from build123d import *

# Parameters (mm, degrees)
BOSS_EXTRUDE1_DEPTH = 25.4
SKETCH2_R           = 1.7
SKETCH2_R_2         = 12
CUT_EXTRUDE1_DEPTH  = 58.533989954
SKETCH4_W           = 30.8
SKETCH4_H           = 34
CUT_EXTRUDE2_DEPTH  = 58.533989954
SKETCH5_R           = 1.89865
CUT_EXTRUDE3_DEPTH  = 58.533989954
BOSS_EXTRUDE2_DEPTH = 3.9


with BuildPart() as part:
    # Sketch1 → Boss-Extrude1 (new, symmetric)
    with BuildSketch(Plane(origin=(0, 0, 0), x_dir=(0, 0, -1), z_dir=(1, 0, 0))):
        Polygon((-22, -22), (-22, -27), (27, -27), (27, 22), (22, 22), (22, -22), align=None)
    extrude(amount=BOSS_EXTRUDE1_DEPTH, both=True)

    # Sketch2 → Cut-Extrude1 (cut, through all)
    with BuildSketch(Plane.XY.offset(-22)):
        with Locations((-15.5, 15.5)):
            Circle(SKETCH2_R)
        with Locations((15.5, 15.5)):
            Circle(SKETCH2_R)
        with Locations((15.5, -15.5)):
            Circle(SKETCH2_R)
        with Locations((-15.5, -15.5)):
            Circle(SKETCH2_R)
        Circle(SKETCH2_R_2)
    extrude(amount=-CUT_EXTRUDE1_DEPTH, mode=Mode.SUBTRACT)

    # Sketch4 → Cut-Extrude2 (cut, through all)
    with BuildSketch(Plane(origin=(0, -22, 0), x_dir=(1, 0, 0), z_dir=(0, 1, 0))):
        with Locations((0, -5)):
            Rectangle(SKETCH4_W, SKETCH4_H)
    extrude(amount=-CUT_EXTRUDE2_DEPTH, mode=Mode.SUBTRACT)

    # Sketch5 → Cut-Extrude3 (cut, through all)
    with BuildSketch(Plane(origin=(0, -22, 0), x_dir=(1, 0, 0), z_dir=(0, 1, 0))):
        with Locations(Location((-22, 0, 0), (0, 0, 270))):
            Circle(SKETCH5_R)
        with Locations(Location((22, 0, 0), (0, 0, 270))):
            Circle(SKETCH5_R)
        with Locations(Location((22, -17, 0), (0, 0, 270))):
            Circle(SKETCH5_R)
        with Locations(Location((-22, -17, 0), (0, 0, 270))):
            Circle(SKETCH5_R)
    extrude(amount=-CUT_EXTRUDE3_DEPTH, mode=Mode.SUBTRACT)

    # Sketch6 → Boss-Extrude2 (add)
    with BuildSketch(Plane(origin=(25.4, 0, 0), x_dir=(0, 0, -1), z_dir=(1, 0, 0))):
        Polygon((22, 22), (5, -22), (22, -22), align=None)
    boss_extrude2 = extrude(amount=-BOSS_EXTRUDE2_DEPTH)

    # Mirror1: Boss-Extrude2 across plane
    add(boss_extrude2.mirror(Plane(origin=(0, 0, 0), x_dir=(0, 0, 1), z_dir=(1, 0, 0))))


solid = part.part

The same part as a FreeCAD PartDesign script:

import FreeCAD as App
import Part
import Sketcher
from FreeCAD import Vector
Q = App.Units.Quantity

doc = App.newDocument("Part")
body = doc.addObject("PartDesign::Body", "Body")

# Sketch on YZ plane
sketch1 = body.newObject("Sketcher::SketchObject", "Sketch")
sketch1.AttachmentSupport = (doc.getObject("YZ_Plane"), [""])
sketch1.MapMode = "FlatFace"
sketch1.addGeometry([
    Part.LineSegment(Vector(-22, 22, 0), Vector(-27, 22, 0)),  # 0
    Part.LineSegment(Vector(-27, 22, 0), Vector(-27, -27, 0)),  # 1
    Part.LineSegment(Vector(-27, -27, 0), Vector(22, -27, 0)),  # 2
    Part.LineSegment(Vector(22, -27, 0), Vector(22, -22, 0)),  # 3
    Part.LineSegment(Vector(22, -22, 0), Vector(-22, -22, 0)),  # 4
    Part.LineSegment(Vector(-22, -22, 0), Vector(-22, 22, 0)),  # 5
], False)
sketch1.addConstraint([
    Sketcher.Constraint("Coincident", 0, 2, 1, 1),
    Sketcher.Constraint("Coincident", 1, 2, 2, 1),
    Sketcher.Constraint("Coincident", 2, 2, 3, 1),
    Sketcher.Constraint("Coincident", 3, 2, 4, 1),
    Sketcher.Constraint("Coincident", 4, 2, 5, 1),
    Sketcher.Constraint("Coincident", 5, 2, 0, 1),
    Sketcher.Constraint("Horizontal", 0),
    Sketcher.Constraint("Vertical", 1),
    Sketcher.Constraint("Horizontal", 2),
    Sketcher.Constraint("Vertical", 3),
    Sketcher.Constraint("Horizontal", 4),
    Sketcher.Constraint("Vertical", 5),
    Sketcher.Constraint("Symmetric", 3, 2, 5, 2, -1, 1),
    Sketcher.Constraint("Equal", 2, 1),
    Sketcher.Constraint("Equal", 0, 3),
    Sketcher.Constraint("DistanceX", 0, 2, 0, 1, Q("5 mm")),
    Sketcher.Constraint("DistanceX", 2, 1, 2, 2, Q("49 mm")),
])
pad1 = body.newObject("PartDesign::Pad", "Pad")
pad1.Profile = sketch1
pad1.Length = 50.8
pad1.Midplane = True

# Sketch on XY plane
sketch2 = body.newObject("Sketcher::SketchObject", "Sketch001")
sketch2.AttachmentSupport = (doc.getObject("XY_Plane"), [""])
sketch2.MapMode = "FlatFace"
sketch2.AttachmentOffset = App.Placement(Vector(0, 0, -22), App.Rotation())
sketch2.addGeometry([
    Part.Circle(Vector(-15.5, 15.5, 0), Vector(0, 0, 1), 1.7),  # 0
    Part.Circle(Vector(15.5, 15.5, 0), Vector(0, 0, 1), 1.7),  # 1
    Part.Circle(Vector(15.5, -15.5, 0), Vector(0, 0, 1), 1.7),  # 2
    Part.Circle(Vector(-15.5, -15.5, 0), Vector(0, 0, 1), 1.7),  # 3
    Part.Circle(Vector(0, 0, 0), Vector(0, 0, 1), 12),  # 4
], False)
sketch2.addConstraint([
    Sketcher.Constraint("Coincident", 4, 3, -1, 1),
    Sketcher.Constraint("Equal", 0, 1),
    Sketcher.Constraint("Equal", 1, 2),
    Sketcher.Constraint("Equal", 2, 3),
    Sketcher.Constraint("Symmetric", 0, 3, 2, 3, -1, 1),
    Sketcher.Constraint("Symmetric", 1, 3, 3, 3, -1, 1),
    Sketcher.Constraint("Symmetric", 0, 3, 1, 3, -2),
    Sketcher.Constraint("Diameter", 4, Q("24 mm")),
    Sketcher.Constraint("Diameter", 0, Q("3.4 mm")),
    Sketcher.Constraint("DistanceX", 0, 3, 1, 3, Q("31 mm")),
    Sketcher.Constraint("DistanceY", 2, 3, 1, 3, Q("31 mm")),
])
pocket1 = body.newObject("PartDesign::Pocket", "Pocket")
pocket1.Profile = sketch2
pocket1.Type = "ThroughAll"

# Sketch on XZ plane
sketch3 = body.newObject("Sketcher::SketchObject", "Sketch002")
sketch3.AttachmentSupport = (doc.getObject("XZ_Plane"), [""])
sketch3.MapMode = "FlatFace"
sketch3.AttachmentOffset = App.Placement(Vector(0, 0, 22), App.Rotation())
sketch3.addGeometry([
    Part.LineSegment(Vector(-15, -12, 0), Vector(-15, 22, 0)),
    Part.LineSegment(Vector(-15, 22, 0), Vector(15, 22, 0)),
    Part.LineSegment(Vector(15, 22, 0), Vector(15, -12, 0)),
    Part.LineSegment(Vector(15, -12, 0), Vector(-15, -12, 0)),
], False)
sketch3.addConstraint([
    Sketcher.Constraint("Coincident", 0, 2, 1, 1),
    Sketcher.Constraint("Coincident", 1, 2, 2, 1),
    Sketcher.Constraint("Coincident", 2, 2, 3, 1),
    Sketcher.Constraint("Coincident", 3, 2, 0, 1),
    Sketcher.Constraint("Vertical", 0),
    Sketcher.Constraint("Horizontal", 1),
    Sketcher.Constraint("Vertical", 2),
    Sketcher.Constraint("Horizontal", 3),
    Sketcher.Constraint("DistanceY", 0, 1, 0, 2, Q("34 mm")),
    Sketcher.Constraint("DistanceX", 1, 1, 1, 2, Q("30.8 mm")),
    Sketcher.Constraint("DistanceY", -1, 1, 0, 2, Q("22 mm")),
    Sketcher.Constraint("DistanceX", 0, 2, -1, 1, Q("15.4 mm")),
])
pocket2 = body.newObject("PartDesign::Pocket", "Pocket001")
pocket2.Profile = sketch3
pocket2.Type = "ThroughAll"
pocket2.Reversed = True

# Sketch on XZ plane
sketch4 = body.newObject("Sketcher::SketchObject", "Sketch003")
sketch4.AttachmentSupport = (doc.getObject("XZ_Plane"), [""])
sketch4.MapMode = "FlatFace"
sketch4.AttachmentOffset = App.Placement(Vector(0, 0, 22), App.Rotation())
sketch4.addGeometry([
    Part.Circle(Vector(-22, 0, 0), Vector(0, 0, 1), 1.9),
    Part.Circle(Vector(22, 0, 0), Vector(0, 0, 1), 1.9),
    Part.Circle(Vector(22, 17, 0), Vector(0, 0, 1), 1.9),
    Part.Circle(Vector(-22, 17, 0), Vector(0, 0, 1), 1.9),
], False)
sketch4.addConstraint([
    Sketcher.Constraint("Equal", 0, 1),
    Sketcher.Constraint("Equal", 1, 2),
    Sketcher.Constraint("Equal", 2, 3),
    Sketcher.Constraint("Symmetric", 0, 3, 1, 3, -1, 1),
    Sketcher.Constraint("Symmetric", 2, 3, 3, 3, -2),
    Sketcher.Constraint("PointOnObject", 0, 3, -1),
    Sketcher.Constraint("Vertical", 1, 3, 2, 3),
    Sketcher.Constraint("DistanceX", 0, 3, -1, 1, Q("22 mm")),
    Sketcher.Constraint("DistanceY", -1, 1, 2, 3, Q("17 mm")),
    Sketcher.Constraint("Diameter", 0, Q("3.7973 mm")),
])
pocket3 = body.newObject("PartDesign::Pocket", "Pocket002")
pocket3.Profile = sketch4
pocket3.Type = "ThroughAll"
pocket3.Reversed = True

# Sketch on YZ plane
sketch5 = body.newObject("Sketcher::SketchObject", "Sketch004")
sketch5.AttachmentSupport = (doc.getObject("YZ_Plane"), [""])
sketch5.MapMode = "FlatFace"
sketch5.AttachmentOffset = App.Placement(Vector(0, 0, 25.4), App.Rotation())
sketch5.addGeometry([
    Part.LineSegment(Vector(22, -22, 0), Vector(-22, -5, 0)),
    Part.LineSegment(Vector(-22, -5, 0), Vector(-22, -22, 0)),
    Part.LineSegment(Vector(-22, -22, 0), Vector(22, -22, 0)),
], False)
sketch5.addConstraint([
    Sketcher.Constraint("Coincident", 0, 2, 1, 1),
    Sketcher.Constraint("Coincident", 1, 2, 2, 1),
    Sketcher.Constraint("Coincident", 2, 2, 0, 1),
    Sketcher.Constraint("Vertical", 1),
    Sketcher.Constraint("Horizontal", 2),
    Sketcher.Constraint("DistanceX", 2, 1, 2, 2, Q("44 mm")),
    Sketcher.Constraint("DistanceY", 1, 2, 1, 1, Q("17 mm")),
    Sketcher.Constraint("DistanceX", 0, 2, -1, 1, Q("22 mm")),
    Sketcher.Constraint("DistanceY", 0, 2, -1, 1, Q("5 mm")),
])
pad2 = body.newObject("PartDesign::Pad", "Pad001")
pad2.Profile = sketch5
pad2.Length = 3.9
pad2.Reversed = True
doc.recompute()

mirrored = body.newObject("PartDesign::Mirrored", "Mirrored")
mirrored.Originals = [pad2]
mirrored.MirrorPlane = (doc.getObject("YZ_Plane"), [""])
body.Tip = mirrored

doc.recompute()
